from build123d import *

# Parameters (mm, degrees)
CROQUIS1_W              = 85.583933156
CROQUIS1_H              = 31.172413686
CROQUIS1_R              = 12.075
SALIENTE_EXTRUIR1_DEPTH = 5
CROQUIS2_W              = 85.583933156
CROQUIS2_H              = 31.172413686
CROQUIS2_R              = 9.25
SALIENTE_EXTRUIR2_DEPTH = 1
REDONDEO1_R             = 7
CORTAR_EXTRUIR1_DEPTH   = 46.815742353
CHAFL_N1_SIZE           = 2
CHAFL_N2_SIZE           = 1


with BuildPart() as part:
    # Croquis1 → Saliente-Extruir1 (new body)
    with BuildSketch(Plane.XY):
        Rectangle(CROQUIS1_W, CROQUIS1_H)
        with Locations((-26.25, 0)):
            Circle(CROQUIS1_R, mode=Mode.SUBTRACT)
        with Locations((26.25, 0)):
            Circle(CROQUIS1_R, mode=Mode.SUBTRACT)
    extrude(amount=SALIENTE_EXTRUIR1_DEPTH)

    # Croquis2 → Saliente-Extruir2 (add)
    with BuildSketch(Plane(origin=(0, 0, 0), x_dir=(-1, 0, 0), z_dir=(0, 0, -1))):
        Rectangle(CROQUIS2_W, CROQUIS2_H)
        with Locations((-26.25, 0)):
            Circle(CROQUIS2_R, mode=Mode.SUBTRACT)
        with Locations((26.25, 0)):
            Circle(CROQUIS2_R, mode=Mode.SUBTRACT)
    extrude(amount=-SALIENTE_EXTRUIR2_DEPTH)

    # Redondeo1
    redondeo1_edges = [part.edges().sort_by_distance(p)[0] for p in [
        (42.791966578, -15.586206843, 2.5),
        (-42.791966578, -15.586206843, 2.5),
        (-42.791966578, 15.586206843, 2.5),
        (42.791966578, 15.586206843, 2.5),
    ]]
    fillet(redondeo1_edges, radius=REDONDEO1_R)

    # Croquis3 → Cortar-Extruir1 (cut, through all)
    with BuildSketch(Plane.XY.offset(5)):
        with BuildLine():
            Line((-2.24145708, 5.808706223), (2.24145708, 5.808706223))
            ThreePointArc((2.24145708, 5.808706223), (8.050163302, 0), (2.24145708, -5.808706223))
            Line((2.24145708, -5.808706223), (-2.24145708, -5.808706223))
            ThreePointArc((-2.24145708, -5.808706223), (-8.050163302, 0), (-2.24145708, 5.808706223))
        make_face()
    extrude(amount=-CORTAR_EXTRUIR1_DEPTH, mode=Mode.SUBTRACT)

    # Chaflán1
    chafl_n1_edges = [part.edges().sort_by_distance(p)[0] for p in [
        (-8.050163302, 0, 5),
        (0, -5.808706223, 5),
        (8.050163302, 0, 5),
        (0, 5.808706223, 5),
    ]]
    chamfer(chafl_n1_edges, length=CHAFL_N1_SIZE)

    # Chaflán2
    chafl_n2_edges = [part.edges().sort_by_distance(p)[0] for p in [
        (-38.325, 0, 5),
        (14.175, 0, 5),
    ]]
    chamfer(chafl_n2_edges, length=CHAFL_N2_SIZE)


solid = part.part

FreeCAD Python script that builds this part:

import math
import FreeCAD as App
import Part
import Sketcher

V = App.Vector


def edges_at(feature, points):
    """Names of the edges that pass closest to the given points."""
    edges = feature.Shape.Edges
    near = lambda p: min(range(len(edges)), key=lambda i: edges[i].distToShape(Part.Vertex(*p))[0])
    return sorted({f"Edge{near(p) + 1}" for p in points})


def add_polygon(sketch, points):
    """Adds a closed chain of lines whose ends are joined by coincident constraints."""
    first, n = sketch.GeometryCount, len(points)
    for a, b in zip(points, points[1:] + points[:1]):
        sketch.addGeometry(Part.LineSegment(App.Vector(*a, 0), App.Vector(*b, 0)), False)
    for i in range(n):
        sketch.addConstraint(Sketcher.Constraint("Coincident", first + i, 2, first + (i + 1) % n, 1))

doc = App.newDocument("Part")
params = doc.addObject("Spreadsheet::Sheet", "Params")
for row, (alias, value) in enumerate([
    ("sketch1_diameter", "24.15 mm"),
    ("pad1_length", "5 mm"),
    ("sketch2_diameter", "18.5 mm"),
    ("pad2_length", "1 mm"),
    ("fillet_radius", "7 mm"),
    ("chamfer_size", "2 mm"),
    ("chamfer2_size", "1 mm"),
], start=1):
    params.set(f"A{row}", alias)
    params.set(f"B{row}", "=" + value)
    params.setAlias(f"B{row}", alias)

body = doc.addObject("PartDesign::Body", "Body")

# Sketch on XY plane
sketch1 = doc.addObject("Sketcher::SketchObject", "Sketch")
body.addObject(sketch1)
sketch1.AttachmentSupport = (doc.XY_Plane, [""])
sketch1.MapMode = "FlatFace"
add_polygon(sketch1, [(-43, 16), (-43, -16), (43, -16), (43, 16)])  # lines 0-3
sketch1.addGeometry(Part.Circle(V(-26, 0, 0), V(0, 0, 1), 12), False)  # 4
sketch1.addGeometry(Part.Circle(V(26, 0, 0), V(0, 0, 1), 12), False)  # 5
sketch1.addConstraint(Sketcher.Constraint("Vertical", 0))
sketch1.addConstraint(Sketcher.Constraint("Horizontal", 1))
sketch1.addConstraint(Sketcher.Constraint("Vertical", 2))
sketch1.addConstraint(Sketcher.Constraint("Horizontal", 3))
sketch1.addConstraint(Sketcher.Constraint("Equal", 4, 5))
sketch1.addConstraint(Sketcher.Constraint("Symmetric", 4, 3, 5, 3, -1, 1))
sketch1.addConstraint(Sketcher.Constraint("Symmetric", 0, 2, 2, 2, -1, 1))
sketch1.addConstraint(Sketcher.Constraint("PointOnObject", 4, 3, -1))
sketch1.addConstraint(Sketcher.Constraint("Diameter", 4, 24.15))
sketch1.addConstraint(Sketcher.Constraint("DistanceX", 4, 3, 5, 3, 52.5))
sketch1.addConstraint(Sketcher.Constraint("DistanceX", 1, 1, 1, 2, 85.583933))
sketch1.addConstraint(Sketcher.Constraint("DistanceY", 0, 2, 0, 1, 31.172414))
sketch1.setExpression("Constraints[12]", "Params.sketch1_diameter")
pad1 = doc.addObject("PartDesign::Pad", "Pad")
body.addObject(pad1)
pad1.Profile = sketch1
pad1.setExpression("Length", "Params.pad1_length")

# Sketch on XY plane
sketch2 = doc.addObject("Sketcher::SketchObject", "Sketch001")
body.addObject(sketch2)
sketch2.AttachmentSupport = (doc.XY_Plane, [""])
sketch2.MapMode = "FlatFace"
add_polygon(sketch2, [(43, 16), (43, -16), (-43, -16), (-43, 16)])  # lines 0-3
sketch2.addGeometry(Part.Circle(V(26, 0, 0), V(0, 0, 1), 9), False)  # 4
sketch2.addGeometry(Part.Circle(V(-26, 0, 0), V(0, 0, 1), 9), False)  # 5
sketch2.addConstraint(Sketcher.Constraint("Vertical", 0))
sketch2.addConstraint(Sketcher.Constraint("Horizontal", 1))
sketch2.addConstraint(Sketcher.Constraint("Vertical", 2))
sketch2.addConstraint(Sketcher.Constraint("Horizontal", 3))
sketch2.addConstraint(Sketcher.Constraint("Equal", 4, 5))
sketch2.addConstraint(Sketcher.Constraint("Symmetric", 4, 3, 5, 3, -1, 1))
sketch2.addConstraint(Sketcher.Constraint("Symmetric", 0, 2, 2, 2, -1, 1))
sketch2.addConstraint(Sketcher.Constraint("PointOnObject", 4, 3, -1))
sketch2.addConstraint(Sketcher.Constraint("Diameter", 4, 18.5))
sketch2.addConstraint(Sketcher.Constraint("DistanceX", 5, 3, 4, 3, 52.5))
sketch2.addConstraint(Sketcher.Constraint("DistanceX", 1, 2, 1, 1, 85.583933))
sketch2.addConstraint(Sketcher.Constraint("DistanceY", 0, 2, 0, 1, 31.172414))
sketch2.setExpression("Constraints[12]", "Params.sketch2_diameter")
pad2 = doc.addObject("PartDesign::Pad", "Pad001")
body.addObject(pad2)
pad2.Profile = sketch2
pad2.setExpression("Length", "Params.pad2_length")
doc.recompute()

fillet = doc.addObject("PartDesign::Fillet", "Fillet")
body.addObject(fillet)
fillet.Base = (pad2, edges_at(pad2, [
    (42.792, -15.586, 2.5),
    (-42.792, -15.586, 2.5),
    (-42.792, 15.586, 2.5),
    (42.792, 15.586, 2.5),
]))
fillet.setExpression("Radius", "Params.fillet_radius")

# Sketch on XY plane
sketch3 = doc.addObject("Sketcher::SketchObject", "Sketch002")
body.addObject(sketch3)
sketch3.AttachmentSupport = (doc.XY_Plane, [""])
sketch3.MapMode = "FlatFace"
sketch3.AttachmentOffset = App.Placement(V(0, 0, 5), App.Rotation())
sketch3.addGeometry(Part.LineSegment(V(2.2, 5.8, 0), V(-2.2, 5.8, 0)), False)
sketch3.addGeometry(Part.ArcOfCircle(Part.Circle(V(-2.2, 0, 0), V(0, 0, 1), 5.8), math.radians(90), math.radians(270)), False)
sketch3.addGeometry(Part.LineSegment(V(-2.2, -5.8, 0), V(2.2, -5.8, 0)), False)
sketch3.addGeometry(Part.ArcOfCircle(Part.Circle(V(2.2, 0, 0), V(0, 0, 1), 5.8), math.radians(-90), math.radians(90)), False)
sketch3.addConstraint(Sketcher.Constraint("Tangent", 0, 2, 1, 1))
sketch3.addConstraint(Sketcher.Constraint("Tangent", 1, 2, 2, 1))
sketch3.addConstraint(Sketcher.Constraint("Tangent", 2, 2, 3, 1))
sketch3.addConstraint(Sketcher.Constraint("Tangent", 3, 2, 0, 1))
sketch3.addConstraint(Sketcher.Constraint("Horizontal", 0))
sketch3.addConstraint(Sketcher.Constraint("Horizontal", 2))
sketch3.addConstraint(Sketcher.Constraint("Symmetric", 1, 3, 3, 3, -1, 1))
sketch3.addConstraint(Sketcher.Constraint("Radius", 1, 5.808706))
sketch3.addConstraint(Sketcher.Constraint("DistanceX", 0, 2, 0, 1, 4.482914))
pocket1 = doc.addObject("PartDesign::Pocket", "Pocket")
body.addObject(pocket1)
pocket1.Profile = sketch3
pocket1.Type = "ThroughAll"
doc.recompute()

chamfer = doc.addObject("PartDesign::Chamfer", "Chamfer")
body.addObject(chamfer)
chamfer.Base = (pocket1, edges_at(pocket1, [
    (-8.05, 0, 5),
    (0, -5.809, 5),
    (8.05, 0, 5),
    (0, 5.809, 5),
]))
chamfer.setExpression("Size", "Params.chamfer_size")
doc.recompute()

chamfer2 = doc.addObject("PartDesign::Chamfer", "Chamfer001")
body.addObject(chamfer2)
chamfer2.Base = (chamfer, edges_at(chamfer, [(-38.325, 0, 5), (14.175, 0, 5)]))
chamfer2.setExpression("Size", "Params.chamfer2_size")

doc.recompute()
